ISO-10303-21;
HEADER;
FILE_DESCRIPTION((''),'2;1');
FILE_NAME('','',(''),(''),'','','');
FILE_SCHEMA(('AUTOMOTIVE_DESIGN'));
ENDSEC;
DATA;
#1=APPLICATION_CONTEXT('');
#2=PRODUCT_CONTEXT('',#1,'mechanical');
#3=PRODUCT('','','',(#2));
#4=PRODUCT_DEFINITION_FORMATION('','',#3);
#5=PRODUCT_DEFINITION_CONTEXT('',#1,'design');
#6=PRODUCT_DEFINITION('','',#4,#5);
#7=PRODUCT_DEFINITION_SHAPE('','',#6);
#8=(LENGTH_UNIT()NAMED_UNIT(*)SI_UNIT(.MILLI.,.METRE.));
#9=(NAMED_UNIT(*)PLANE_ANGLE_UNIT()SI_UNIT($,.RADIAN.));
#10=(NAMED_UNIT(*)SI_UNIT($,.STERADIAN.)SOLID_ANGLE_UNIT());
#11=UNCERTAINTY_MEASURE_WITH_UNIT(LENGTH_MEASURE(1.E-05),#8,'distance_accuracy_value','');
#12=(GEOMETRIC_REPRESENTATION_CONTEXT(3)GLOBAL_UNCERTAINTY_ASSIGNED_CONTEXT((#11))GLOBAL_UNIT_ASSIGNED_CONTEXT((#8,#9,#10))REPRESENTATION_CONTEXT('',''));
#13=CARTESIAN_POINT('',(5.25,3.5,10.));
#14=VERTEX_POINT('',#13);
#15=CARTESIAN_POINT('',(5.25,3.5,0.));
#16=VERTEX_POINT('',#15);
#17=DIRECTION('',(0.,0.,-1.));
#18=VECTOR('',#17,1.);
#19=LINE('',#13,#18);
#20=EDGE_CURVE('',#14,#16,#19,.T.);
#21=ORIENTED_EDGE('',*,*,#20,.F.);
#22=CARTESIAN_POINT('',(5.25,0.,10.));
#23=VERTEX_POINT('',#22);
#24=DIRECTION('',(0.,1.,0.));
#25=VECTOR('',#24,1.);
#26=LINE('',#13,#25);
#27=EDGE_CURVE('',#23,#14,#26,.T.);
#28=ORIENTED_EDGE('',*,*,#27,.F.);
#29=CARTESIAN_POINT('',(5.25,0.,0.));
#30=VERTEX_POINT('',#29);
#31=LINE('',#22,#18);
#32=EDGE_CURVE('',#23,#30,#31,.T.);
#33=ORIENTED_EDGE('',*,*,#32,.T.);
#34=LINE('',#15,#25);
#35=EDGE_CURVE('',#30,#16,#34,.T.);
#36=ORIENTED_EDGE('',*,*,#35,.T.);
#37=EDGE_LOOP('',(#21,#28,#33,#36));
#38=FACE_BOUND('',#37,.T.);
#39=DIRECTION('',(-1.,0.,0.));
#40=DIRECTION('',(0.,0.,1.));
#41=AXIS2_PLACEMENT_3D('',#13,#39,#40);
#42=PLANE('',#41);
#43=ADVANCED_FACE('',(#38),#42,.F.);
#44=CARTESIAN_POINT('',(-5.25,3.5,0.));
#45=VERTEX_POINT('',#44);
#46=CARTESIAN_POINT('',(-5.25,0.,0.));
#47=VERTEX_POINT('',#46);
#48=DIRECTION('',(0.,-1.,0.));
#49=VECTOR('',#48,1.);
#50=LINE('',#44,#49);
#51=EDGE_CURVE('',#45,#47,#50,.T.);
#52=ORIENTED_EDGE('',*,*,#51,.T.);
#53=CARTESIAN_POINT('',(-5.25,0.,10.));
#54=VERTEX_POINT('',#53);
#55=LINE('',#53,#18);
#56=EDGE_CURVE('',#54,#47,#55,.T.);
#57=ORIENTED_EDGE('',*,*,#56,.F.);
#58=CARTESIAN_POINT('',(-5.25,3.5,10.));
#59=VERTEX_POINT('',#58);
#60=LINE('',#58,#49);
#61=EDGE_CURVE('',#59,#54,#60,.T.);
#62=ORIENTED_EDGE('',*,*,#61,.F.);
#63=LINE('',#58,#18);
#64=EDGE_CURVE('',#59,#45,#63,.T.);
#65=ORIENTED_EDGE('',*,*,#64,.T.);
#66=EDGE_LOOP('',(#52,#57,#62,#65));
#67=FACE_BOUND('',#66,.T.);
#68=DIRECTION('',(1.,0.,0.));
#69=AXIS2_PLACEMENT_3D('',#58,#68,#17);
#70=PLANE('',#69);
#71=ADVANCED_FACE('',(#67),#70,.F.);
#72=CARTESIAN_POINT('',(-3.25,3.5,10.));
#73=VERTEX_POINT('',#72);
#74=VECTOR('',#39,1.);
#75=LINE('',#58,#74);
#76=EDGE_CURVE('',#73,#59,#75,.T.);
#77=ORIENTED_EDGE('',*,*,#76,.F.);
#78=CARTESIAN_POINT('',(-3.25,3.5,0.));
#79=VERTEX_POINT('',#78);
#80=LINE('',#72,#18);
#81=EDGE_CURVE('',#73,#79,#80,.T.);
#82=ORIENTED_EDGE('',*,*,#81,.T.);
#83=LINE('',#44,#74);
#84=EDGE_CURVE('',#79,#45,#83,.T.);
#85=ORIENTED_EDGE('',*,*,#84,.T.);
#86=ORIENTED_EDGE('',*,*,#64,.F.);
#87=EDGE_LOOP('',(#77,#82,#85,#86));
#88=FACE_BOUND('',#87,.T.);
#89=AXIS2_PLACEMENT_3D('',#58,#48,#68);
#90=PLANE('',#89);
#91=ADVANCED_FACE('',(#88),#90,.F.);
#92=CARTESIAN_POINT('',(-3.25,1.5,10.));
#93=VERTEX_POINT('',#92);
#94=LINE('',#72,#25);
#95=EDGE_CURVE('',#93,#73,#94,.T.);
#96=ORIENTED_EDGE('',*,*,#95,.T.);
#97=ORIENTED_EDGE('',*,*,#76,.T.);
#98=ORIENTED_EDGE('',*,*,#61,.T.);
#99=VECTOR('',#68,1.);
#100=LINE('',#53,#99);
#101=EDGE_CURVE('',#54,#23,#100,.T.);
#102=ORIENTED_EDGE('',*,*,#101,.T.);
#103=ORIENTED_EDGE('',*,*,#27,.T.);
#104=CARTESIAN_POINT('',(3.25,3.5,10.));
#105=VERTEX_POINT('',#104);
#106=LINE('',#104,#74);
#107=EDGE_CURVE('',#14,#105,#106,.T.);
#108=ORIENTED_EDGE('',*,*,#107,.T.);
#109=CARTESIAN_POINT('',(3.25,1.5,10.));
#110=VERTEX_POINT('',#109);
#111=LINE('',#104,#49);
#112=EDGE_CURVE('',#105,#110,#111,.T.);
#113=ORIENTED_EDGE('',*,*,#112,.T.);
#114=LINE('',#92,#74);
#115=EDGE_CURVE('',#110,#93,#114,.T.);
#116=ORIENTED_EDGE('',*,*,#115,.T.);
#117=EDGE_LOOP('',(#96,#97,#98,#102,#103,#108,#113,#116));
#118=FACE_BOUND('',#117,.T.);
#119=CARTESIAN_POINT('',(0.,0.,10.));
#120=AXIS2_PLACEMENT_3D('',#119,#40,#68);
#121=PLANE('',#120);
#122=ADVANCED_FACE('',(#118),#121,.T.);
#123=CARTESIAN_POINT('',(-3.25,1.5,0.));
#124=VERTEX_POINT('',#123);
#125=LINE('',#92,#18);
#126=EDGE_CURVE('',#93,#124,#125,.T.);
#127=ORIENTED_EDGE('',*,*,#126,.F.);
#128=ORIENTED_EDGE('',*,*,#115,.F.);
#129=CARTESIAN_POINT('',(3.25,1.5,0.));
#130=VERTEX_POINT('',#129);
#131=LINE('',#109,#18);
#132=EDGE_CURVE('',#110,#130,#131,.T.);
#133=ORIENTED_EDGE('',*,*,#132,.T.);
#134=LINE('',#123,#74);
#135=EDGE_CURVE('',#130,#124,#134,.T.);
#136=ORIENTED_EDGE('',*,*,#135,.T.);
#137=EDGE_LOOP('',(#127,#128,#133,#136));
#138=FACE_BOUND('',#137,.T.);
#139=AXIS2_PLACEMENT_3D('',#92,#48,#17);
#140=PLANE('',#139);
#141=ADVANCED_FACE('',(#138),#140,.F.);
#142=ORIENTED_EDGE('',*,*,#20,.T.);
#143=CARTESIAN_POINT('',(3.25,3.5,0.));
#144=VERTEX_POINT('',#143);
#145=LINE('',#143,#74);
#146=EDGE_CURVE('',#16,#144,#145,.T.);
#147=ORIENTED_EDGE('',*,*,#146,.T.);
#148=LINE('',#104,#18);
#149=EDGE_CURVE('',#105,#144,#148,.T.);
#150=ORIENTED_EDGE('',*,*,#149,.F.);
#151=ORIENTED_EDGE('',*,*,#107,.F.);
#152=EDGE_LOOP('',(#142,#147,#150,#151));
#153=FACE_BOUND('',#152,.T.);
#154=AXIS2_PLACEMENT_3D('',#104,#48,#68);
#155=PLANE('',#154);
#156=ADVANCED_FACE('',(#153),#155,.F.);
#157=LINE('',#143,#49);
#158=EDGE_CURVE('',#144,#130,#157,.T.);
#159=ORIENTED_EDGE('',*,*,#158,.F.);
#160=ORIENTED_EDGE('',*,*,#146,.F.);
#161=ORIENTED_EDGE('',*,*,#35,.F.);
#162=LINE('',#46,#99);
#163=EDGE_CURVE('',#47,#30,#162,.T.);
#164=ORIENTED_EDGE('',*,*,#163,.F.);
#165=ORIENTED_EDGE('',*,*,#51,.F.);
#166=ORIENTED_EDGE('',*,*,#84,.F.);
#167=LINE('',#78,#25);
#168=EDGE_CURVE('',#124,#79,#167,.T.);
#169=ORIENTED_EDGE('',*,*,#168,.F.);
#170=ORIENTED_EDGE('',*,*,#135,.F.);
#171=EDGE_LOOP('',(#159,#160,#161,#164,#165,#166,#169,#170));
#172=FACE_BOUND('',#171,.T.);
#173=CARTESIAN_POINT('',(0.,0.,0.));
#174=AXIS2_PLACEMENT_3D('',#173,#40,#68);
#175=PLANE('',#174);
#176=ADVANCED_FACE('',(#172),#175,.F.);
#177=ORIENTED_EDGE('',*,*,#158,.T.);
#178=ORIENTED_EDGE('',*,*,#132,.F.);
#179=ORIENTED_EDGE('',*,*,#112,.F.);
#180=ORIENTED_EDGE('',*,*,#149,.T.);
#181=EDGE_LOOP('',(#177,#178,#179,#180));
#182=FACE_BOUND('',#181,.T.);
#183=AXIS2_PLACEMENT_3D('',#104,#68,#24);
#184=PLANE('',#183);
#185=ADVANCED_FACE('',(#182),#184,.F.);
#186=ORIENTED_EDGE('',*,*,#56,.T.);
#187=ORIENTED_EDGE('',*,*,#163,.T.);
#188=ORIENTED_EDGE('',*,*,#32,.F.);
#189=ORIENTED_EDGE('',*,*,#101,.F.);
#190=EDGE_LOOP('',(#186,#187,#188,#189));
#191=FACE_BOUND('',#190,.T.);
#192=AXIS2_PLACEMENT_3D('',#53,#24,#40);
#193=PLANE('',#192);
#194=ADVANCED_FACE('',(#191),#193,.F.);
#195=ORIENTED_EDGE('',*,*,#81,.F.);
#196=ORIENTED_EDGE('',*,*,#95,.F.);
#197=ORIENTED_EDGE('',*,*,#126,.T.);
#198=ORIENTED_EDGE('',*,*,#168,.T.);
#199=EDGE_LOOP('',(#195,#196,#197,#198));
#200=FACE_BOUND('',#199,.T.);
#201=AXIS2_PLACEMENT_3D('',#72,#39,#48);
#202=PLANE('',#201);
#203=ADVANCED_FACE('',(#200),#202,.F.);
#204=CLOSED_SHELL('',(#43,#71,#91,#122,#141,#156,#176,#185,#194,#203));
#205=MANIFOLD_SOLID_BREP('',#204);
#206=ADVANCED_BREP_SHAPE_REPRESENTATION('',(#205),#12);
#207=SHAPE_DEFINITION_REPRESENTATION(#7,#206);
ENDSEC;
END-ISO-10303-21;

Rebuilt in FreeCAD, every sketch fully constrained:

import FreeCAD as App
import Part
import Sketcher

V = App.Vector

doc = App.newDocument("Part")
body = doc.addObject("PartDesign::Body", "Body")

# Sketch on XY plane
sketch1 = doc.addObject("Sketcher::SketchObject", "Sketch")
body.addObject(sketch1)
sketch1.AttachmentSupport = (doc.XY_Plane, [""])
sketch1.MapMode = "FlatFace"
sketch1.addGeometry(Part.LineSegment(V(5.2, 3.5, 0), V(3.2, 3.5, 0)), False)
sketch1.addGeometry(Part.LineSegment(V(3.2, 3.5, 0), V(3.2, 1.5, 0)), False)
sketch1.addGeometry(Part.LineSegment(V(3.2, 1.5, 0), V(-3.2, 1.5, 0)), False)
sketch1.addGeometry(Part.LineSegment(V(-3.2, 1.5, 0), V(-3.2, 3.5, 0)), False)
sketch1.addGeometry(Part.LineSegment(V(-3.2, 3.5, 0), V(-5.2, 3.5, 0)), False)
sketch1.addGeometry(Part.LineSegment(V(-5.2, 3.5, 0), V(-5.2, 0, 0)), False)
sketch1.addGeometry(Part.LineSegment(V(-5.2, 0, 0), V(5.2, 0, 0)), False)
sketch1.addGeometry(Part.LineSegment(V(5.2, 0, 0), V(5.2, 3.5, 0)), False)
sketch1.addConstraint(Sketcher.Constraint("Coincident", 0, 2, 1, 1))
sketch1.addConstraint(Sketcher.Constraint("Coincident", 1, 2, 2, 1))
sketch1.addConstraint(Sketcher.Constraint("Coincident", 2, 2, 3, 1))
sketch1.addConstraint(Sketcher.Constraint("Coincident", 3, 2, 4, 1))
sketch1.addConstraint(Sketcher.Constraint("Coincident", 4, 2, 5, 1))
sketch1.addConstraint(Sketcher.Constraint("Coincident", 5, 2, 6, 1))
sketch1.addConstraint(Sketcher.Constraint("Coincident", 6, 2, 7, 1))
sketch1.addConstraint(Sketcher.Constraint("Coincident", 7, 2, 0, 1))
sketch1.addConstraint(Sketcher.Constraint("Horizontal", 0))
sketch1.addConstraint(Sketcher.Constraint("Vertical", 1))
sketch1.addConstraint(Sketcher.Constraint("Horizontal", 2))
sketch1.addConstraint(Sketcher.Constraint("Vertical", 3))
sketch1.addConstraint(Sketcher.Constraint("Horizontal", 4))
sketch1.addConstraint(Sketcher.Constraint("Vertical", 5))
sketch1.addConstraint(Sketcher.Constraint("Horizontal", 6))
sketch1.addConstraint(Sketcher.Constraint("Vertical", 7))
sketch1.addConstraint(Sketcher.Constraint("Symmetric", 5, 2, 6, 2, -1, 1))
sketch1.addConstraint(Sketcher.Constraint("Symmetric", 0, 2, 3, 2, -2))
sketch1.addConstraint(Sketcher.Constraint("Equal", 4, 1))
sketch1.addConstraint(Sketcher.Constraint("DistanceX", 0, 2, 0, 1, 2.0))
sketch1.addConstraint(Sketcher.Constraint("DistanceX", 2, 2, 2, 1, 6.5))
sketch1.addConstraint(Sketcher.Constraint("DistanceY", 5, 2, 5, 1, 3.5))
pad1 = doc.addObject("PartDesign::Pad", "Pad")
body.addObject(pad1)
pad1.Profile = sketch1
pad1.Length = 10

doc.recompute()
